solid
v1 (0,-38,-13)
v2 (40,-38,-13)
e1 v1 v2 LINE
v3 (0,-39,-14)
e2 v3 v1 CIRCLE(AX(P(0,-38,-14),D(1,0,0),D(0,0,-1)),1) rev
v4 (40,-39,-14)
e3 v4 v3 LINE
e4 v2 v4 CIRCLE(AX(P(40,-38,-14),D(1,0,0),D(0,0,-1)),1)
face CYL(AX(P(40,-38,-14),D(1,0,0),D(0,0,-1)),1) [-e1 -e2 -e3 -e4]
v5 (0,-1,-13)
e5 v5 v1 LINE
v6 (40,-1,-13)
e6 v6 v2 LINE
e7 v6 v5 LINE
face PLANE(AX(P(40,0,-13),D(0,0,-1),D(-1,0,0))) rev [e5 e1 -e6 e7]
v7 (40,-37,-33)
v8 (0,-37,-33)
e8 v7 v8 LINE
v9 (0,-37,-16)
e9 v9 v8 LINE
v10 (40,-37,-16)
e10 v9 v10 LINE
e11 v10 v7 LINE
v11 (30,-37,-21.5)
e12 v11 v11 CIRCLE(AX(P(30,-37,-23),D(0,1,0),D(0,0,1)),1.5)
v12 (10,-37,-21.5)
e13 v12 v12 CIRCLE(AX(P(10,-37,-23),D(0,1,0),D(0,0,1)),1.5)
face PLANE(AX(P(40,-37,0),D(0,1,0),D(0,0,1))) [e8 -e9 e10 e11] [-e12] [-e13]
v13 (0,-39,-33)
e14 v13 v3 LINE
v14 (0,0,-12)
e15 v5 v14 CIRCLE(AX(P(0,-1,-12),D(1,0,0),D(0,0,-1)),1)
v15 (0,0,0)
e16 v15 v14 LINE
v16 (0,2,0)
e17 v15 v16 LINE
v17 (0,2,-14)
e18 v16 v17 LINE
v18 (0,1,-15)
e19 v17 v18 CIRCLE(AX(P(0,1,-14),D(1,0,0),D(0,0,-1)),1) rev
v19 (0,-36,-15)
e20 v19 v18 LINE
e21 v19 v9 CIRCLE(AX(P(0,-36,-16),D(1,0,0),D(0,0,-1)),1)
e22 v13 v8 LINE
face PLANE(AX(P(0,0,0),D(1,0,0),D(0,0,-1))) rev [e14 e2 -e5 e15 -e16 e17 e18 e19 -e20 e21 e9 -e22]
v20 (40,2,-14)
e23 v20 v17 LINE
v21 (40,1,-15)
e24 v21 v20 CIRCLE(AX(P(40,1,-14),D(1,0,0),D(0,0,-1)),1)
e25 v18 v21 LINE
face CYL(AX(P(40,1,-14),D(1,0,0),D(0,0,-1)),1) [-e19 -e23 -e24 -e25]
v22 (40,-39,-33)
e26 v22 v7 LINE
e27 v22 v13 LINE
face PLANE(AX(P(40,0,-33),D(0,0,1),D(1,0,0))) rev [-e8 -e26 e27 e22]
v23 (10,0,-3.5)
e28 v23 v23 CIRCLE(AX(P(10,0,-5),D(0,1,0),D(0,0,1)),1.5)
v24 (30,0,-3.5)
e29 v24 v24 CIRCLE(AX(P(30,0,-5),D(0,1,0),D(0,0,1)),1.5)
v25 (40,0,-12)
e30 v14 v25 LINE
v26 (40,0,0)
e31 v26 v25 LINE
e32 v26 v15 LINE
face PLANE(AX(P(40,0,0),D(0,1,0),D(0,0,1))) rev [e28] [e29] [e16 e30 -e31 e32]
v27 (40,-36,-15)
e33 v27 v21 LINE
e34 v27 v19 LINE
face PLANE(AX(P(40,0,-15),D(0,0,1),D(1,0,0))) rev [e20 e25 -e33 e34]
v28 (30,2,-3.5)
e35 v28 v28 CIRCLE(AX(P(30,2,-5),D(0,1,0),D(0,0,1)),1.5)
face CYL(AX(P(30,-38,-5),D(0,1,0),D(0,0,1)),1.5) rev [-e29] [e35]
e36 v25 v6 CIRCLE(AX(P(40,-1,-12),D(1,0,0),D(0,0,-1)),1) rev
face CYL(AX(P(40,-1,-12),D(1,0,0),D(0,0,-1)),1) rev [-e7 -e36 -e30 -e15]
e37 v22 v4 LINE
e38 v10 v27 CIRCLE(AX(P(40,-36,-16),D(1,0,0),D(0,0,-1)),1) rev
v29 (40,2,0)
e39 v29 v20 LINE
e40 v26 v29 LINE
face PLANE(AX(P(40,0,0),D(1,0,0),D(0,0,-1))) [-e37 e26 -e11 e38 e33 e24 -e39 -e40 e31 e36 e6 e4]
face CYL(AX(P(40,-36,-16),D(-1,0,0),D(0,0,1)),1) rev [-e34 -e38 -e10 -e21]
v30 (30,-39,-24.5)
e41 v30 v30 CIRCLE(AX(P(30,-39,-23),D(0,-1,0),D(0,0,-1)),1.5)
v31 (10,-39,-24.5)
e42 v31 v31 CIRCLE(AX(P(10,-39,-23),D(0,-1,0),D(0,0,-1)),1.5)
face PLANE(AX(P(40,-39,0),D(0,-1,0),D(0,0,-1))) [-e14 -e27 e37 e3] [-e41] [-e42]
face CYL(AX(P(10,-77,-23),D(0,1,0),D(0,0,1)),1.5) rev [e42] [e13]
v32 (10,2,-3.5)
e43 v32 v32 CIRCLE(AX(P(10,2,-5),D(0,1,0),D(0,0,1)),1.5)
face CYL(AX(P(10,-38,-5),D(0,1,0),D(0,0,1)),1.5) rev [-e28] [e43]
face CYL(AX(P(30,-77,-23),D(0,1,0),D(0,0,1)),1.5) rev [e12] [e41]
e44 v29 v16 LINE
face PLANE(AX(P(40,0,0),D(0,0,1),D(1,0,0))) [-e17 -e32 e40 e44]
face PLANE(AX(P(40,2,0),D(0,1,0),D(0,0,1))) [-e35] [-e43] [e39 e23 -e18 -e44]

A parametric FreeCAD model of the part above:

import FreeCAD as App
import Part
import Sketcher


def edges_at(feature, points):
    """Names of the edges that pass closest to the given points."""
    edges = feature.Shape.Edges
    near = lambda p: min(range(len(edges)), key=lambda i: edges[i].distToShape(Part.Vertex(*p))[0])
    return sorted({f"Edge{near(p) + 1}" for p in points})


def add_polygon(sketch, points):
    """Adds a closed chain of lines whose ends are joined by coincident constraints."""
    first, n = sketch.GeometryCount, len(points)
    for a, b in zip(points, points[1:] + points[:1]):
        sketch.addGeometry(Part.LineSegment(App.Vector(*a, 0), App.Vector(*b, 0)), False)
    for i in range(n):
        sketch.addConstraint(Sketcher.Constraint("Coincident", first + i, 2, first + (i + 1) % n, 1))

doc = App.newDocument("Part")
body = doc.addObject("PartDesign::Body", "Body")

sketch1 = doc.addObject("Sketcher::SketchObject", "Sketch")
body.addObject(sketch1)
sketch1.AttachmentSupport = (doc.YZ_Plane, [""])
sketch1.MapMode = "FlatFace"
add_polygon(sketch1, [(2, 0), (0, 0), (0, -13), (-39, -13), (-39, -33), (-37, -33), (-37, -15), (2, -15)])
sketch1.addConstraint([
    Sketcher.Constraint("Horizontal", 0),
    Sketcher.Constraint("Vertical", 1),
    Sketcher.Constraint("Horizontal", 2),
    Sketcher.Constraint("Vertical", 3),
    Sketcher.Constraint("Horizontal", 4),
    Sketcher.Constraint("Vertical", 5),
    Sketcher.Constraint("Horizontal", 6),
    Sketcher.Constraint("Vertical", 7),
    Sketcher.Constraint("Coincident", 0, 2, -1, 1),
    Sketcher.Constraint("Equal", 0, 4),
    Sketcher.Constraint("DistanceX", 0, 2, 0, 1, 2.0),
    Sketcher.Constraint("DistanceX", 2, 2, 2, 1, 39.0),
    Sketcher.Constraint("DistanceY", 1, 2, 1, 1, 13.0),
    Sketcher.Constraint("DistanceY", 3, 2, 3, 1, 20.0),
    Sketcher.Constraint("DistanceY", 5, 1, 5, 2, 18.0),
])
pad1 = doc.addObject("PartDesign::Pad", "Pad")
body.addObject(pad1)
pad1.Profile = sketch1
pad1.Length = 40

sketch2 = doc.addObject("Sketcher::SketchObject", "Sketch001")
body.addObject(sketch2)
sketch2.AttachmentSupport = (doc.XZ_Plane, [""])
sketch2.MapMode = "FlatFace"
sketch2.AttachmentOffset = App.Placement(App.Vector(0, 0, -2), App.Rotation())
sketch2.addGeometry([
    Part.Circle(App.Vector(10, -5, 0), App.Vector(0, 0, 1), 1.5),
    Part.Circle(App.Vector(30, -5, 0), App.Vector(0, 0, 1), 1.5),
], False)
sketch2.addConstraint([
    Sketcher.Constraint("Equal", 0, 1),
    Sketcher.Constraint("Horizontal", 0, 3, 1, 3),
    Sketcher.Constraint("Diameter", 0, 3.0),
    Sketcher.Constraint("DistanceX", -1, 1, 0, 3, 10.0),
    Sketcher.Constraint("DistanceY", 0, 3, -1, 1, 5.0),
    Sketcher.Constraint("DistanceX", -1, 1, 1, 3, 30.0),
])
pocket1 = doc.addObject("PartDesign::Pocket", "Pocket")
body.addObject(pocket1)
pocket1.Profile = sketch2
pocket1.Length = 40
pocket1.Reversed = True
doc.recompute()

fillet = doc.addObject("PartDesign::Fillet", "Fillet")
body.addObject(fillet)
fillet.Base = (pocket1, edges_at(pocket1, [
    (20, 2, -15),
    (20, -37, -15),
    (20, -39, -13),
    (20, 0, -13),
]))
fillet.Radius = 1

sketch3 = doc.addObject("Sketcher::SketchObject", "Sketch002")
body.addObject(sketch3)
sketch3.AttachmentSupport = (doc.XZ_Plane, [""])
sketch3.MapMode = "FlatFace"
sketch3.AttachmentOffset = App.Placement(App.Vector(0, 0, 37), App.Rotation())
sketch3.addGeometry([
    Part.Circle(App.Vector(30, -23, 0), App.Vector(0, 0, 1), 1.5),
    Part.Circle(App.Vector(10, -23, 0), App.Vector(0, 0, 1), 1.5),
], False)
sketch3.addConstraint([
    Sketcher.Constraint("Equal", 0, 1),
    Sketcher.Constraint("Horizontal", 0, 3, 1, 3),
    Sketcher.Constraint("Diameter", 0, 3.0),
    Sketcher.Constraint("DistanceX", -1, 1, 0, 3, 30.0),
    Sketcher.Constraint("DistanceY", 0, 3, -1, 1, 23.0),
    Sketcher.Constraint("DistanceX", -1, 1, 1, 3, 10.0),
])
pocket2 = doc.addObject("PartDesign::Pocket", "Pocket001")
body.addObject(pocket2)
pocket2.Profile = sketch3
pocket2.Length = 40
pocket2.Reversed = True

doc.recompute()
